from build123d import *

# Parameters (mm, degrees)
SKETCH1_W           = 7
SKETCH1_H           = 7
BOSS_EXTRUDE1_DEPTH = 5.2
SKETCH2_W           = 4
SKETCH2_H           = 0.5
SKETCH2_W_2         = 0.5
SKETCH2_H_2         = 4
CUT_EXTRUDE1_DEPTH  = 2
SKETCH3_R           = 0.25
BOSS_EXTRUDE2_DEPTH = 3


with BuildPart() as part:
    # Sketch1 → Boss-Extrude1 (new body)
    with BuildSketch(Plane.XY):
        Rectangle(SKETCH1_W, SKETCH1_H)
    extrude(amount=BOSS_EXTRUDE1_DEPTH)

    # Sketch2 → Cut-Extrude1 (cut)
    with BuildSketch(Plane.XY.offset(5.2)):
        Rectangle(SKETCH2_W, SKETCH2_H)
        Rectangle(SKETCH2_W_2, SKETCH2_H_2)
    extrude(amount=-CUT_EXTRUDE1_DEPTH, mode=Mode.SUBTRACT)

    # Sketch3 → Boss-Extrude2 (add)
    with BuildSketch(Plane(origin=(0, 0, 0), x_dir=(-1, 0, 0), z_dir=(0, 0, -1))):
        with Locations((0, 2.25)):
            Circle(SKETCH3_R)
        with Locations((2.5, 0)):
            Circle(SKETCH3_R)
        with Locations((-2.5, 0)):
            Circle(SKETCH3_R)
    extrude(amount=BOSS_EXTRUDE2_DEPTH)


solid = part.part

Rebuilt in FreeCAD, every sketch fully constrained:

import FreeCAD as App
import Part
import Sketcher


def add_polygon(sketch, points):
    """Adds a closed chain of lines whose ends are joined by coincident constraints."""
    first, n = sketch.GeometryCount, len(points)
    for a, b in zip(points, points[1:] + points[:1]):
        sketch.addGeometry(Part.LineSegment(App.Vector(*a, 0), App.Vector(*b, 0)), False)
    for i in range(n):
        sketch.addConstraint(Sketcher.Constraint("Coincident", first + i, 2, first + (i + 1) % n, 1))

doc = App.newDocument("Part")
body = doc.addObject("PartDesign::Body", "Body")

# Sketch on XY plane
sketch1 = body.newObject("Sketcher::SketchObject", "Sketch")
sketch1.AttachmentSupport = (doc.getObject("XY_Plane"), [""])
sketch1.MapMode = "FlatFace"
add_polygon(sketch1, [(-4, 4), (-4, -4), (4, -4), (4, 4)])  # lines 0-3
sketch1.addConstraint([
    Sketcher.Constraint("Vertical", 0),
    Sketcher.Constraint("Horizontal", 1),
    Sketcher.Constraint("Vertical", 2),
    Sketcher.Constraint("Horizontal", 3),
    Sketcher.Constraint("Symmetric", 0, 2, 2, 2, -1, 1),
    Sketcher.Constraint("Equal", 3, 0),
    Sketcher.Constraint("DistanceX", 1, 1, 1, 2, 7.0),
])
pad1 = body.newObject("PartDesign::Pad", "Pad")
pad1.Profile = sketch1
pad1.Length = 5.2

# Sketch on XY plane
sketch2 = body.newObject("Sketcher::SketchObject", "Sketch001")
sketch2.AttachmentSupport = (doc.getObject("XY_Plane"), [""])
sketch2.MapMode = "FlatFace"
sketch2.AttachmentOffset = App.Placement(App.Vector(0, 0, 5.2), App.Rotation())
add_polygon(sketch2, [(-2, 0.2), (-2, -0.2), (-0.2, -0.2), (-0.2, -2), (0.2, -2), (0.2, -0.2), (2, -0.2), (2, 0.2), (0.2, 0.2), (0.2, 2), (-0.2, 2), (-0.2, 0.2)])  # lines 0-11
sketch2.addConstraint([
    Sketcher.Constraint("Vertical", 0),
    Sketcher.Constraint("Horizontal", 1),
    Sketcher.Constraint("Vertical", 2),
    Sketcher.Constraint("Horizontal", 3),
    Sketcher.Constraint("Vertical", 4),
    Sketcher.Constraint("Horizontal", 5),
    Sketcher.Constraint("Vertical", 6),
    Sketcher.Constraint("Horizontal", 7),
    Sketcher.Constraint("Vertical", 8),
    Sketcher.Constraint("Horizontal", 9),
    Sketcher.Constraint("Vertical", 10),
    Sketcher.Constraint("Horizontal", 11),
    Sketcher.Constraint("Symmetric", 0, 2, 6, 2, -1, 1),
    Sketcher.Constraint("Symmetric", 2, 2, 8, 2, -1, 1),
    Sketcher.Constraint("Symmetric", 4, 2, 10, 2, -1, 1),
    Sketcher.Constraint("Symmetric", 1, 2, 4, 2, -2),
    Sketcher.Constraint("Equal", 9, 0),
    Sketcher.Constraint("Equal", 11, 2),
    Sketcher.Constraint("DistanceX", 3, 1, 3, 2, 0.5),
    Sketcher.Constraint("DistanceX", 0, 2, -1, 1, 2.0),
])
pocket1 = body.newObject("PartDesign::Pocket", "Pocket")
pocket1.Profile = sketch2
pocket1.Length = 2

# Sketch on XY plane
sketch3 = body.newObject("Sketcher::SketchObject", "Sketch002")
sketch3.AttachmentSupport = (doc.getObject("XY_Plane"), [""])
sketch3.MapMode = "FlatFace"
sketch3.addGeometry([
    Part.Circle(App.Vector(0, 2.25, 0), App.Vector(0, 0, 1), 0.25),
    Part.Circle(App.Vector(-2.5, 0, 0), App.Vector(0, 0, 1), 0.25),
    Part.Circle(App.Vector(2.5, 0, 0), App.Vector(0, 0, 1), 0.25),
], False)
sketch3.addConstraint([
    Sketcher.Constraint("Equal", 0, 1),
    Sketcher.Constraint("Equal", 1, 2),
    Sketcher.Constraint("Symmetric", 1, 3, 2, 3, -1, 1),
    Sketcher.Constraint("PointOnObject", 0, 3, -2),
    Sketcher.Constraint("PointOnObject", 1, 3, -1),
    Sketcher.Constraint("Diameter", 0, 0.5),
    Sketcher.Constraint("DistanceX", 1, 3, 2, 3, 5.0),
    Sketcher.Constraint("DistanceY", -1, 1, 0, 3, 2.25),
])
pad2 = body.newObject("PartDesign::Pad", "Pad001")
pad2.Profile = sketch3
pad2.Length = 3
pad2.Reversed = True

doc.recompute()
